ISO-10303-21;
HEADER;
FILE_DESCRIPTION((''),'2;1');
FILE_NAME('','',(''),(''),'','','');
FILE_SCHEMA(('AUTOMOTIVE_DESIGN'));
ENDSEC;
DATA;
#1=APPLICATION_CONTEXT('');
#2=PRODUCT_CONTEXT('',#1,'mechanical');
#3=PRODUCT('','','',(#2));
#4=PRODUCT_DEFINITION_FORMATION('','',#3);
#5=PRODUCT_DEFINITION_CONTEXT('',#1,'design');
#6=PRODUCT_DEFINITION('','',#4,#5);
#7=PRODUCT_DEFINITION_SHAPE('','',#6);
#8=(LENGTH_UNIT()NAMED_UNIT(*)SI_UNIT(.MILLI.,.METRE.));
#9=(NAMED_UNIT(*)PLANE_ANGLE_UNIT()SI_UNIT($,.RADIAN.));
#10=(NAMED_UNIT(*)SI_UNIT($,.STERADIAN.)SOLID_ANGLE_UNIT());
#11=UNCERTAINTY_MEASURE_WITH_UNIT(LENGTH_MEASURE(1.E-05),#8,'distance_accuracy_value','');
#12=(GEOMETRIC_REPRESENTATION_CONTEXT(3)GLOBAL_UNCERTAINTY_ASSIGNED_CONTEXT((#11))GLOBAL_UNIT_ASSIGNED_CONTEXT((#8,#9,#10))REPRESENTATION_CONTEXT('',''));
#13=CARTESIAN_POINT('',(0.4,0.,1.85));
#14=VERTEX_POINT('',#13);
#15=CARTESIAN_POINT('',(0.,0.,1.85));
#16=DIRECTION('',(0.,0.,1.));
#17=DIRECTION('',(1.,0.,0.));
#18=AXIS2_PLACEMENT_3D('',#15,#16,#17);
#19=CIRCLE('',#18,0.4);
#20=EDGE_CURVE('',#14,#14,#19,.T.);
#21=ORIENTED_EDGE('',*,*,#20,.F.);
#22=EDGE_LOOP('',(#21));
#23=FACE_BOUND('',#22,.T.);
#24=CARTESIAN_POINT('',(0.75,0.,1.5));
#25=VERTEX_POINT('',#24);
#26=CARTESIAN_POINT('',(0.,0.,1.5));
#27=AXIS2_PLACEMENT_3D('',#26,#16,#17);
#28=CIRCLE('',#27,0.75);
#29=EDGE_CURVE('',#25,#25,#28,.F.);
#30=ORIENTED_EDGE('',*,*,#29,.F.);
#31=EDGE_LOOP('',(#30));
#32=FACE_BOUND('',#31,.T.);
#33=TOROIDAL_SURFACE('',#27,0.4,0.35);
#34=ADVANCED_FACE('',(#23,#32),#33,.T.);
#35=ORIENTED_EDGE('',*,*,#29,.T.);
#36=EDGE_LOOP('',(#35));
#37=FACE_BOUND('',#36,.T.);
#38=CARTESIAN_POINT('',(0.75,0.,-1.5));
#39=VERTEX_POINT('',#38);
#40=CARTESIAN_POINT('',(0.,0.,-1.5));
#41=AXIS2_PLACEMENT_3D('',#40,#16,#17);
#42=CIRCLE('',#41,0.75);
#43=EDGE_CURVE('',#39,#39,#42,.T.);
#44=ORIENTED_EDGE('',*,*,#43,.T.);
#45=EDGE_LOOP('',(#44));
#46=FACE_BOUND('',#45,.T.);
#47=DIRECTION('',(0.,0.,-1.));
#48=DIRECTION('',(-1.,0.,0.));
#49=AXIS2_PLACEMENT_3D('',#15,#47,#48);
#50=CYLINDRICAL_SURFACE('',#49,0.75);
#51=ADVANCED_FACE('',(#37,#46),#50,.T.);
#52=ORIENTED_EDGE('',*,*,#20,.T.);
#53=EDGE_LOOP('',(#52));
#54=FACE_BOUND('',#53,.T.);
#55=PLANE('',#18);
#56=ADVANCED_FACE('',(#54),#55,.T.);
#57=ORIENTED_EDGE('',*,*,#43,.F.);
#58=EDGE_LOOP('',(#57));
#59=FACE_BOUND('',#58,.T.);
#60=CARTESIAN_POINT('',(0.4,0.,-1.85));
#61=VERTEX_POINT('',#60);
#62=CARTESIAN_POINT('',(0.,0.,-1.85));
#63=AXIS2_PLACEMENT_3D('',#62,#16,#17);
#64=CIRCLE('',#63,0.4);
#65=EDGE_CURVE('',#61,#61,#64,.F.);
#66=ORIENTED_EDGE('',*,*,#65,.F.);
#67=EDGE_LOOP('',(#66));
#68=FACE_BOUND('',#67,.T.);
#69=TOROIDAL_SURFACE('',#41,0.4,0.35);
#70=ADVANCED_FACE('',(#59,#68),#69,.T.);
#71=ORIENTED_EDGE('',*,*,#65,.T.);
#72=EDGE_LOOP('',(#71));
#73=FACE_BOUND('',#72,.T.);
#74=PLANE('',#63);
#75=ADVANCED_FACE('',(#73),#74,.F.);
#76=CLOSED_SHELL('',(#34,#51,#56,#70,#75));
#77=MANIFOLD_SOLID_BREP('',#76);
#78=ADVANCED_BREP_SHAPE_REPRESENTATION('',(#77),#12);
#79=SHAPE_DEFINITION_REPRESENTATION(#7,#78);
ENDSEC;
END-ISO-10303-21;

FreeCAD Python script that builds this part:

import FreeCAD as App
import Part
import Sketcher

V = App.Vector
Q = App.Units.Quantity


def edges_at(feature, points):
    """Names of the edges that pass closest to the given points."""
    edges = feature.Shape.Edges
    near = lambda p: min(range(len(edges)), key=lambda i: edges[i].distToShape(Part.Vertex(*p))[0])
    return sorted({f"Edge{near(p) + 1}" for p in points})

doc = App.newDocument("Part")
body = doc.addObject("PartDesign::Body", "Body")

# Sketch on XY plane
sketch1 = doc.addObject("Sketcher::SketchObject", "Sketch")
body.addObject(sketch1)
sketch1.AttachmentSupport = (doc.XY_Plane, [""])
sketch1.MapMode = "FlatFace"
sketch1.addGeometry(Part.Circle(V(0, 0, 0), V(0, 0, 1), 0.8), False)
sketch1.addConstraint(Sketcher.Constraint("Coincident", 0, 3, -1, 1))
sketch1.addConstraint(Sketcher.Constraint("Diameter", 0, Q("1.5 mm")))
pad1 = doc.addObject("PartDesign::Pad", "Pad")
body.addObject(pad1)
pad1.Profile = sketch1
pad1.Length = 3.7
pad1.Midplane = True
doc.recompute()

fillet = doc.addObject("PartDesign::Fillet", "Fillet")
body.addObject(fillet)
fillet.Base = (pad1, edges_at(pad1, [(-0.75, 0, -1.85), (-0.75, 0, 1.85)]))
fillet.Radius = 0.35

doc.recompute()
